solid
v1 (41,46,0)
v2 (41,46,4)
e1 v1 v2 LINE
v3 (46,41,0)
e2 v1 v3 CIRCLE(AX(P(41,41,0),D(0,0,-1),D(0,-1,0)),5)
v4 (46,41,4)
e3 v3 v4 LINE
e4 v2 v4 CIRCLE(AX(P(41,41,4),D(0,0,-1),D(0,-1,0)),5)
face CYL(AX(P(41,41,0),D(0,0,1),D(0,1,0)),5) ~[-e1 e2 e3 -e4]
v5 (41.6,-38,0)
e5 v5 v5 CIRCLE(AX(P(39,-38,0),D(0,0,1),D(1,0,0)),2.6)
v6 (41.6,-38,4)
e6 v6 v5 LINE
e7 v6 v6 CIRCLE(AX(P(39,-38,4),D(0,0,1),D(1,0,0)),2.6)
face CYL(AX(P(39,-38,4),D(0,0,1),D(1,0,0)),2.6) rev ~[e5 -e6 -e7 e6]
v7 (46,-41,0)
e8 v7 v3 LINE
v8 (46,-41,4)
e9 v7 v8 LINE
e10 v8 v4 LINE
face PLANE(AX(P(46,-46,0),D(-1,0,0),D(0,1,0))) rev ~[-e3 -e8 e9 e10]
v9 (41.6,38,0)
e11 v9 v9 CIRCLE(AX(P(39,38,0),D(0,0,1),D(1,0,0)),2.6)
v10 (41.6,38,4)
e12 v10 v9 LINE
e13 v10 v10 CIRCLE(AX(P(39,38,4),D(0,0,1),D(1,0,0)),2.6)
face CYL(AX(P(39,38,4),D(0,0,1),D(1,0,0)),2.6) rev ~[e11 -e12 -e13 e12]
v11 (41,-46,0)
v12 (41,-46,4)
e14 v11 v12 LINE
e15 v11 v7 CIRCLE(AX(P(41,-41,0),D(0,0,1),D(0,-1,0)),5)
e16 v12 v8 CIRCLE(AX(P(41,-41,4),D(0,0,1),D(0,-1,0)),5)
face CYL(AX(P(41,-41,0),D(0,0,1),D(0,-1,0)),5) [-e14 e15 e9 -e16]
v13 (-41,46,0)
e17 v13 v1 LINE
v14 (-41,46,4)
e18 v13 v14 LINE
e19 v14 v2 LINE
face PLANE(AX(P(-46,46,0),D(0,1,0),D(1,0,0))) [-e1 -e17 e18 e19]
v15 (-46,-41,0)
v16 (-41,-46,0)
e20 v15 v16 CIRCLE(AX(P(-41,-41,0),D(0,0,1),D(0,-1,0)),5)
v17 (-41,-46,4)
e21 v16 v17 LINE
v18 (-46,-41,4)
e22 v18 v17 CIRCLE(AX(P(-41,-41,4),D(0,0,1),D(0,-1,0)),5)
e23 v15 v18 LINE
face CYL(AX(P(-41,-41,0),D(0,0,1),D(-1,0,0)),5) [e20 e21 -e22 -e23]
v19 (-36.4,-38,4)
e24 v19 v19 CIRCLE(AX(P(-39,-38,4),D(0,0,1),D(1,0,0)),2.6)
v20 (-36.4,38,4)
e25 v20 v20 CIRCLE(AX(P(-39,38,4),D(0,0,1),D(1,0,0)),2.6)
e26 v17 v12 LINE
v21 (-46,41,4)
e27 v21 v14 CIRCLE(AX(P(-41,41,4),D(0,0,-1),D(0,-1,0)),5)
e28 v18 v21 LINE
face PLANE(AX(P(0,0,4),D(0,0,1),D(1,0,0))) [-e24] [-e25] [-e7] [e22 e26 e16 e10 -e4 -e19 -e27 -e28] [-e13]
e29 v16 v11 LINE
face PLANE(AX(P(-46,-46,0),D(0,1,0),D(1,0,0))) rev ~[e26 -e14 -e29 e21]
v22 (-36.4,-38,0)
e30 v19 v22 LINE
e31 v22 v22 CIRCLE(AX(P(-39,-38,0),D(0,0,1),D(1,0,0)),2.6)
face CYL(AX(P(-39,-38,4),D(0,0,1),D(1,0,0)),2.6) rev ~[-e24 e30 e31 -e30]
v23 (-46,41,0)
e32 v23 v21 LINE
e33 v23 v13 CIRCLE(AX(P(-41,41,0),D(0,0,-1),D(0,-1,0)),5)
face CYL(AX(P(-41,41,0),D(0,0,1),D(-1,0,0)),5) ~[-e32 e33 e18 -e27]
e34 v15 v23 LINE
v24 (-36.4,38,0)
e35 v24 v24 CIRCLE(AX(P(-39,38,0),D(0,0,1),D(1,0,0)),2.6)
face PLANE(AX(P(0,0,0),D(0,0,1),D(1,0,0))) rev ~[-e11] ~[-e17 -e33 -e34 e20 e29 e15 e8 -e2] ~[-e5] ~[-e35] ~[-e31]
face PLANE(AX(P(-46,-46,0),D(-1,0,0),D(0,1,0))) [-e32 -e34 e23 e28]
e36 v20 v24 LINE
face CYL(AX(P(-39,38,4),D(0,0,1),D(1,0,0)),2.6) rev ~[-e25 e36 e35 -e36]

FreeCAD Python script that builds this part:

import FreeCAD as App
import Part
import Sketcher

V = App.Vector


def edges_at(feature, points):
    """Names of the edges that pass closest to the given points."""
    edges = feature.Shape.Edges
    near = lambda p: min(range(len(edges)), key=lambda i: edges[i].distToShape(Part.Vertex(*p))[0])
    return sorted({f"Edge{near(p) + 1}" for p in points})


def add_polygon(sketch, points):
    """Adds a closed chain of lines whose ends are joined by coincident constraints."""
    first, n = sketch.GeometryCount, len(points)
    for a, b in zip(points, points[1:] + points[:1]):
        sketch.addGeometry(Part.LineSegment(App.Vector(*a, 0), App.Vector(*b, 0)), False)
    for i in range(n):
        sketch.addConstraint(Sketcher.Constraint("Coincident", first + i, 2, first + (i + 1) % n, 1))

doc = App.newDocument("Part")
body = doc.addObject("PartDesign::Body", "Body")

# Sketch on XY plane
sketch1 = body.newObject("Sketcher::SketchObject", "Sketch")
sketch1.AttachmentSupport = (doc.getObject("XY_Plane"), [""])
sketch1.MapMode = "FlatFace"
add_polygon(sketch1, [(-46, 46), (-46, -46), (46, -46), (46, 46)])  # lines 0-3
sketch1.addConstraint(Sketcher.Constraint("Vertical", 0))
sketch1.addConstraint(Sketcher.Constraint("Horizontal", 1))
sketch1.addConstraint(Sketcher.Constraint("Vertical", 2))
sketch1.addConstraint(Sketcher.Constraint("Horizontal", 3))
sketch1.addConstraint(Sketcher.Constraint("Symmetric", 0, 2, 2, 2, -1, 1))
sketch1.addConstraint(Sketcher.Constraint("Equal", 3, 0))
sketch1.addConstraint(Sketcher.Constraint("DistanceX", 1, 1, 1, 2, 92.0))
pad1 = body.newObject("PartDesign::Pad", "Pad")
pad1.Profile = sketch1
pad1.Length = 4

# Sketch on XY plane
sketch2 = body.newObject("Sketcher::SketchObject", "Sketch001")
sketch2.AttachmentSupport = (doc.getObject("XY_Plane"), [""])
sketch2.MapMode = "FlatFace"
sketch2.AttachmentOffset = App.Placement(V(0, 0, 4), App.Rotation())
sketch2.addGeometry(Part.Circle(V(-39, 38, 0), V(0, 0, 1), 2.6), False)
sketch2.addGeometry(Part.Circle(V(-39, -38, 0), V(0, 0, 1), 2.6), False)
sketch2.addGeometry(Part.Circle(V(39, -38, 0), V(0, 0, 1), 2.6), False)
sketch2.addGeometry(Part.Circle(V(39, 38, 0), V(0, 0, 1), 2.6), False)
sketch2.addConstraint(Sketcher.Constraint("Equal", 0, 1))
sketch2.addConstraint(Sketcher.Constraint("Equal", 1, 2))
sketch2.addConstraint(Sketcher.Constraint("Equal", 2, 3))
sketch2.addConstraint(Sketcher.Constraint("Symmetric", 0, 3, 2, 3, -1, 1))
sketch2.addConstraint(Sketcher.Constraint("Symmetric", 1, 3, 3, 3, -1, 1))
sketch2.addConstraint(Sketcher.Constraint("Symmetric", 1, 3, 2, 3, -2))
sketch2.addConstraint(Sketcher.Constraint("Diameter", 0, 5.2))
sketch2.addConstraint(Sketcher.Constraint("DistanceX", 0, 3, -1, 1, 39.0))
sketch2.addConstraint(Sketcher.Constraint("DistanceY", -1, 1, 0, 3, 38.0))
pocket1 = body.newObject("PartDesign::Pocket", "Pocket")
pocket1.Profile = sketch2
pocket1.Type = "ThroughAll"
doc.recompute()

fillet = body.newObject("PartDesign::Fillet", "Fillet")
fillet.Base = (pocket1, edges_at(pocket1, [
    (46, -46, 2),
    (-46, -46, 2),
    (-46, 46, 2),
    (46, 46, 2),
]))
fillet.Radius = 5

doc.recompute()
